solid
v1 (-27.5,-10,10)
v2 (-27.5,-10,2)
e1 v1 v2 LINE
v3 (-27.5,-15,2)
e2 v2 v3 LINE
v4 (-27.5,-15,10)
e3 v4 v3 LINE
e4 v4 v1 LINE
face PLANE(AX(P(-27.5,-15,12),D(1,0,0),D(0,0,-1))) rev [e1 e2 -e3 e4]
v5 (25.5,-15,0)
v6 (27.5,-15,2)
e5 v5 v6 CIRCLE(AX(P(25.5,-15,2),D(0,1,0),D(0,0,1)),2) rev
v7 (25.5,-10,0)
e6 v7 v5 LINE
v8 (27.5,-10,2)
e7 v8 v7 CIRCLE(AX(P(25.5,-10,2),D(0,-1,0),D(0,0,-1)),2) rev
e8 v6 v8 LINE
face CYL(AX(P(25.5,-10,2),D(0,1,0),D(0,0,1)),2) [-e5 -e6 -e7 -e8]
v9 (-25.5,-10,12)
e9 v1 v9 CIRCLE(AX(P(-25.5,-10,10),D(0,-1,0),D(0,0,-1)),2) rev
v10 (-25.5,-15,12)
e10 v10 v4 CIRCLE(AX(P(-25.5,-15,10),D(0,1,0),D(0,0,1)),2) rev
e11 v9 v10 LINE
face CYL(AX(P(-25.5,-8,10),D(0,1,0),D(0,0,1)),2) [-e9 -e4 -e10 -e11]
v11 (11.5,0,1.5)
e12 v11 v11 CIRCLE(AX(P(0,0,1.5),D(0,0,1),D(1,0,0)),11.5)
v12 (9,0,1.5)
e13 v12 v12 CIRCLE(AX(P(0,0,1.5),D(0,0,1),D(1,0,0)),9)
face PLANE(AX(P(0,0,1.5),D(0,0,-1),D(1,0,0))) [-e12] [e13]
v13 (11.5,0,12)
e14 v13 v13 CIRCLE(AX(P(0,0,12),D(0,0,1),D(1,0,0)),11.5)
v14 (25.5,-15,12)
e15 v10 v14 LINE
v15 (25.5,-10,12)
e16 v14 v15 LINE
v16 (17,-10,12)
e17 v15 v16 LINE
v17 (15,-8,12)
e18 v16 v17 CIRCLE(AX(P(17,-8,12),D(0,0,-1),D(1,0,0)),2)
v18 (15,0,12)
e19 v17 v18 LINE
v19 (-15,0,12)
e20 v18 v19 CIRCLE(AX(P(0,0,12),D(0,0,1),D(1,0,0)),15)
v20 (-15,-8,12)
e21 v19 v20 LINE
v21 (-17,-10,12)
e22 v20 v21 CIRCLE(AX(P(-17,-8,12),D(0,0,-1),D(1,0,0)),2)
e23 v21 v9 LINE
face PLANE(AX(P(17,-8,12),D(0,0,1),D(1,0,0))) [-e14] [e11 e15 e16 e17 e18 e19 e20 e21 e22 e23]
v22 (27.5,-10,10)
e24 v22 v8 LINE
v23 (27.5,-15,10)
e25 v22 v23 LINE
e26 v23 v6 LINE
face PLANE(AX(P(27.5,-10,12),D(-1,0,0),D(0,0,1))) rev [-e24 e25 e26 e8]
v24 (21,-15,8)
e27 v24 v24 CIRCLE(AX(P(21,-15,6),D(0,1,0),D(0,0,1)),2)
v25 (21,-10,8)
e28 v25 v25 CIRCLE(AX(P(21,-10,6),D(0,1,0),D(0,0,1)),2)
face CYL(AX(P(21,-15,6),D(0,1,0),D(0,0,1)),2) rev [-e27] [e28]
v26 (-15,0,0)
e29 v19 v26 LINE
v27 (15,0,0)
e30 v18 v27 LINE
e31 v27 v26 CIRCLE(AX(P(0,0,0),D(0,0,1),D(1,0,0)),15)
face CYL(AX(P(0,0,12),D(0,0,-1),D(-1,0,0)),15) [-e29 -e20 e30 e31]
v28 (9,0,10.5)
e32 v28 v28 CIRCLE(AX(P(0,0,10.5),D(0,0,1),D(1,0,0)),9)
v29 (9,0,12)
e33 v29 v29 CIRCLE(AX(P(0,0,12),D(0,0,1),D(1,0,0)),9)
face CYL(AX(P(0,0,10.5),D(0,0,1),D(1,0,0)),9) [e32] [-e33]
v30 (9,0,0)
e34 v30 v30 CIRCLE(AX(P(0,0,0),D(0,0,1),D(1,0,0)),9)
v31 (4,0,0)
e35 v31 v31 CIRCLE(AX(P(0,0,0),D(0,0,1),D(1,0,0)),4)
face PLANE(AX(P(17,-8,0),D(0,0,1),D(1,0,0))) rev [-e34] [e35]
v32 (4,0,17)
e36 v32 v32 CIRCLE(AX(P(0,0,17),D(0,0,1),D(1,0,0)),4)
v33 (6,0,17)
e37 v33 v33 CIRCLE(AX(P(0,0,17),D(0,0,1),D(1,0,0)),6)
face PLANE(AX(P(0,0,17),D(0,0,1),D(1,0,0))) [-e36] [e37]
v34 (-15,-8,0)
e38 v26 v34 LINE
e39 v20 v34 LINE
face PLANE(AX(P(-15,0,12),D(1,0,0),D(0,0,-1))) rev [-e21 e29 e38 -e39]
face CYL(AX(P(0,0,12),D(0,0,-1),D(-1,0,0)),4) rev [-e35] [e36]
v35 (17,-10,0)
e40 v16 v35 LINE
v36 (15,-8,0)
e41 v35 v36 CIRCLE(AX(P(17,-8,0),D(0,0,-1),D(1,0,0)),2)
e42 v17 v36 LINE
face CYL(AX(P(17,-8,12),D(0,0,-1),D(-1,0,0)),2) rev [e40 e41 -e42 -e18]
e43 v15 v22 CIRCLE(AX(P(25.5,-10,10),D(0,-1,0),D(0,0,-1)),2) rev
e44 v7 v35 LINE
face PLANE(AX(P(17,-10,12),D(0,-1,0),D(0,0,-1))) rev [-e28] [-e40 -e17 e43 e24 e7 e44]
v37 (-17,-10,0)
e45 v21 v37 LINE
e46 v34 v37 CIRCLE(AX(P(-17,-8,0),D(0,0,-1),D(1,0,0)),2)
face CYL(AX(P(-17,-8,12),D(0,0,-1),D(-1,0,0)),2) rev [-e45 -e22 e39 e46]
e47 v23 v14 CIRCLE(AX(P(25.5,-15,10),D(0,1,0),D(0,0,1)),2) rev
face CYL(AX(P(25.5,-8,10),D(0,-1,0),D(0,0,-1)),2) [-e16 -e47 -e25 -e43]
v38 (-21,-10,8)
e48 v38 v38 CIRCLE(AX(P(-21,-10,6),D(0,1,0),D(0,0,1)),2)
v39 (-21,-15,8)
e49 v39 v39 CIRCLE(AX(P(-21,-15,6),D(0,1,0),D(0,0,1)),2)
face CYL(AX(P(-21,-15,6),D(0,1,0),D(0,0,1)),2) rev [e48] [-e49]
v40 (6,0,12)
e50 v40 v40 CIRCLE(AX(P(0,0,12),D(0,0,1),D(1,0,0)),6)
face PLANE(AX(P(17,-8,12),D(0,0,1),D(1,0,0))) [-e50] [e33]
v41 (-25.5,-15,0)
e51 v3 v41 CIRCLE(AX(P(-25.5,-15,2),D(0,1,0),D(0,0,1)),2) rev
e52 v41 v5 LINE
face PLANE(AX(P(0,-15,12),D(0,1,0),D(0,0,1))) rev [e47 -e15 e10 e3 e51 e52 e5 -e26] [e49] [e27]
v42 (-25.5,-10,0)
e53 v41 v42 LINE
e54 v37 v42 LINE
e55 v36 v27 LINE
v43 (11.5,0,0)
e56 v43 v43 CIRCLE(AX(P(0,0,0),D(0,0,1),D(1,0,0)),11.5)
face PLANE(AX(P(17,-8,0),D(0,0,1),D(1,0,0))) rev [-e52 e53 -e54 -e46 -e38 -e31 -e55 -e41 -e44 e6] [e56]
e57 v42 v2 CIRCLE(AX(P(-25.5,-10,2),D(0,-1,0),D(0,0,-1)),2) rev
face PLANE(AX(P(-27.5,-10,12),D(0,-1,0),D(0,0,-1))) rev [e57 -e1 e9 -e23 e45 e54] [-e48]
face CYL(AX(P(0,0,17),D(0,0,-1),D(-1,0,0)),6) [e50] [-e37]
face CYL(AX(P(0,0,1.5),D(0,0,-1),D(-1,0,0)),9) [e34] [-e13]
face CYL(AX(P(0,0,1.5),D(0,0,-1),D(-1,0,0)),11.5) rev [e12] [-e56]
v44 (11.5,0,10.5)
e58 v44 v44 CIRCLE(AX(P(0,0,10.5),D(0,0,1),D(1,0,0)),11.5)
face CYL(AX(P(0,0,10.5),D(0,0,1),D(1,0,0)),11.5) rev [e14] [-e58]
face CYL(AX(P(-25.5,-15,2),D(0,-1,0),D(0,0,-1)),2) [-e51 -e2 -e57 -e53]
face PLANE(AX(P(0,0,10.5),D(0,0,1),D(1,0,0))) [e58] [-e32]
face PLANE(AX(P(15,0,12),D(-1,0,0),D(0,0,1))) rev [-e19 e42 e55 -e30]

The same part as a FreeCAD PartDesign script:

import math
import FreeCAD as App
import Part
import Sketcher


def edges_at(feature, points):
    """Names of the edges that pass closest to the given points."""
    edges = feature.Shape.Edges
    near = lambda p: min(range(len(edges)), key=lambda i: edges[i].distToShape(Part.Vertex(*p))[0])
    return sorted({f"Edge{near(p) + 1}" for p in points})

doc = App.newDocument("Part")
body = doc.addObject("PartDesign::Body", "Body")

# Sketch on XY plane
sketch1 = body.newObject("Sketcher::SketchObject", "Sketch")
sketch1.AttachmentSupport = (doc.getObject("XY_Plane"), [""])
sketch1.MapMode = "FlatFace"
sketch1.addGeometry(Part.LineSegment(App.Vector(-27.5, -10, 0), App.Vector(-27.5, -15, 0)), False)
sketch1.addGeometry(Part.LineSegment(App.Vector(-27.5, -15, 0), App.Vector(27.5, -15, 0)), False)
sketch1.addGeometry(Part.LineSegment(App.Vector(27.5, -15, 0), App.Vector(27.5, -10, 0)), False)
sketch1.addGeometry(Part.LineSegment(App.Vector(27.5, -10, 0), App.Vector(17, -10, 0)), False)
sketch1.addGeometry(Part.ArcOfCircle(Part.Circle(App.Vector(17, -8, 0), App.Vector(0, 0, 1), 2), math.radians(-180), math.radians(-90)), False)
sketch1.addGeometry(Part.LineSegment(App.Vector(15, -8, 0), App.Vector(15, 0, 0)), False)
sketch1.addGeometry(Part.ArcOfCircle(Part.Circle(App.Vector(0, 0, 0), App.Vector(0, 0, 1), 15), math.radians(0), math.radians(180)), False)
sketch1.addGeometry(Part.LineSegment(App.Vector(-15, 0, 0), App.Vector(-15, -8, 0)), False)
sketch1.addGeometry(Part.ArcOfCircle(Part.Circle(App.Vector(-17, -8, 0), App.Vector(0, 0, 1), 2), math.radians(-90), math.radians(0)), False)
sketch1.addGeometry(Part.LineSegment(App.Vector(-17, -10, 0), App.Vector(-27.5, -10, 0)), False)
sketch1.addGeometry(Part.Circle(App.Vector(0, 0, 0), App.Vector(0, 0, 1), 4), False)
sketch1.addConstraint(Sketcher.Constraint("Coincident", 0, 2, 1, 1))
sketch1.addConstraint(Sketcher.Constraint("Coincident", 1, 2, 2, 1))
sketch1.addConstraint(Sketcher.Constraint("Coincident", 2, 2, 3, 1))
sketch1.addConstraint(Sketcher.Constraint("Tangent", 3, 2, 4, 2))
sketch1.addConstraint(Sketcher.Constraint("Tangent", 4, 1, 5, 1))
sketch1.addConstraint(Sketcher.Constraint("Tangent", 5, 2, 6, 1))
sketch1.addConstraint(Sketcher.Constraint("Tangent", 6, 2, 7, 1))
sketch1.addConstraint(Sketcher.Constraint("Tangent", 7, 2, 8, 2))
sketch1.addConstraint(Sketcher.Constraint("Tangent", 8, 1, 9, 1))
sketch1.addConstraint(Sketcher.Constraint("Coincident", 9, 2, 0, 1))
sketch1.addConstraint(Sketcher.Constraint("Vertical", 0))
sketch1.addConstraint(Sketcher.Constraint("Horizontal", 1))
sketch1.addConstraint(Sketcher.Constraint("Vertical", 2))
sketch1.addConstraint(Sketcher.Constraint("Horizontal", 3))
sketch1.addConstraint(Sketcher.Constraint("Vertical", 5))
sketch1.addConstraint(Sketcher.Constraint("Vertical", 7))
sketch1.addConstraint(Sketcher.Constraint("Horizontal", 9))
sketch1.addConstraint(Sketcher.Constraint("Coincident", 6, 3, -1, 1))
sketch1.addConstraint(Sketcher.Constraint("Coincident", 10, 3, -1, 1))
sketch1.addConstraint(Sketcher.Constraint("Equal", 4, 8))
sketch1.addConstraint(Sketcher.Constraint("Symmetric", 2, 2, 9, 2, -2))
sketch1.addConstraint(Sketcher.Constraint("Diameter", 10, 8.0))
sketch1.addConstraint(Sketcher.Constraint("Radius", 4, 2.0))
sketch1.addConstraint(Sketcher.Constraint("Radius", 6, 15.0))
sketch1.addConstraint(Sketcher.Constraint("DistanceX", 1, 1, 1, 2, 55.0))
sketch1.addConstraint(Sketcher.Constraint("DistanceY", 0, 2, 0, 1, 5.0))
sketch1.addConstraint(Sketcher.Constraint("DistanceY", 5, 1, 5, 2, 8.0))
pad1 = body.newObject("PartDesign::Pad", "Pad")
pad1.Profile = sketch1
pad1.Length = 12
doc.recompute()

fillet = body.newObject("PartDesign::Fillet", "Fillet")
fillet.Base = (pad1, edges_at(pad1, [
    (27.5, -12.5, 0),
    (-27.5, -12.5, 0),
    (-27.5, -12.5, 12),
    (27.5, -12.5, 12),
]))
fillet.Radius = 2

# Sketch on XZ plane
sketch2 = body.newObject("Sketcher::SketchObject", "Sketch001")
sketch2.AttachmentSupport = (doc.getObject("XZ_Plane"), [""])
sketch2.MapMode = "FlatFace"
sketch2.AttachmentOffset = App.Placement(App.Vector(0, 0, 10), App.Rotation())
sketch2.addGeometry(Part.Circle(App.Vector(-21, 6, 0), App.Vector(0, 0, 1), 2), False)
sketch2.addGeometry(Part.Circle(App.Vector(21, 6, 0), App.Vector(0, 0, 1), 2), False)
sketch2.addConstraint(Sketcher.Constraint("Equal", 0, 1))
sketch2.addConstraint(Sketcher.Constraint("Symmetric", 0, 3, 1, 3, -2))
sketch2.addConstraint(Sketcher.Constraint("Diameter", 0, 4.0))
sketch2.addConstraint(Sketcher.Constraint("DistanceX", 0, 3, -1, 1, 21.0))
sketch2.addConstraint(Sketcher.Constraint("DistanceY", -1, 1, 0, 3, 6.0))
pocket1 = body.newObject("PartDesign::Pocket", "Pocket")
pocket1.Profile = sketch2
pocket1.Type = "ThroughAll"
pocket1.Reversed = True

# Sketch on XY plane
sketch3 = body.newObject("Sketcher::SketchObject", "Sketch002")
sketch3.AttachmentSupport = (doc.getObject("XY_Plane"), [""])
sketch3.MapMode = "FlatFace"
sketch3.AttachmentOffset = App.Placement(App.Vector(0, 0, 12), App.Rotation())
sketch3.addGeometry(Part.Circle(App.Vector(0, 0, 0), App.Vector(0, 0, 1), 6), False)
sketch3.addGeometry(Part.Circle(App.Vector(0, 0, 0), App.Vector(0, 0, 1), 4), False)
sketch3.addConstraint(Sketcher.Constraint("Coincident", 0, 3, -1, 1))
sketch3.addConstraint(Sketcher.Constraint("Coincident", 1, 3, -1, 1))
sketch3.addConstraint(Sketcher.Constraint("Diameter", 0, 12.0))
sketch3.addConstraint(Sketcher.Constraint("Diameter", 1, 8.0))
pad2 = body.newObject("PartDesign::Pad", "Pad001")
pad2.Profile = sketch3
pad2.Length = 5

# Sketch on XY plane
sketch4 = body.newObject("Sketcher::SketchObject", "Sketch003")
sketch4.AttachmentSupport = (doc.getObject("XY_Plane"), [""])
sketch4.MapMode = "FlatFace"
sketch4.AttachmentOffset = App.Placement(App.Vector(0, 0, 12), App.Rotation())
sketch4.addGeometry(Part.Circle(App.Vector(0, 0, 0), App.Vector(0, 0, 1), 11.5), False)
sketch4.addGeometry(Part.Circle(App.Vector(0, 0, 0), App.Vector(0, 0, 1), 9), False)
sketch4.addConstraint(Sketcher.Constraint("Coincident", 0, 3, -1, 1))
sketch4.addConstraint(Sketcher.Constraint("Coincident", 1, 3, -1, 1))
sketch4.addConstraint(Sketcher.Constraint("Diameter", 0, 23.0))
sketch4.addConstraint(Sketcher.Constraint("Diameter", 1, 18.0))
pocket2 = body.newObject("PartDesign::Pocket", "Pocket001")
pocket2.Profile = sketch4
pocket2.Length = 1.5
doc.recompute()

datumplane = body.newObject("PartDesign::Plane", "DatumPlane")
datumplane.AttachmentSupport = (doc.getObject("XY_Plane"), [""])
datumplane.MapMode = "FlatFace"
datumplane.AttachmentOffset = App.Placement(App.Vector(0, 0, 6), App.Rotation())
mirrored = body.newObject("PartDesign::Mirrored", "Mirrored")
mirrored.Originals = [pocket2]
mirrored.MirrorPlane = (datumplane, [""])
body.Tip = mirrored

doc.recompute()
